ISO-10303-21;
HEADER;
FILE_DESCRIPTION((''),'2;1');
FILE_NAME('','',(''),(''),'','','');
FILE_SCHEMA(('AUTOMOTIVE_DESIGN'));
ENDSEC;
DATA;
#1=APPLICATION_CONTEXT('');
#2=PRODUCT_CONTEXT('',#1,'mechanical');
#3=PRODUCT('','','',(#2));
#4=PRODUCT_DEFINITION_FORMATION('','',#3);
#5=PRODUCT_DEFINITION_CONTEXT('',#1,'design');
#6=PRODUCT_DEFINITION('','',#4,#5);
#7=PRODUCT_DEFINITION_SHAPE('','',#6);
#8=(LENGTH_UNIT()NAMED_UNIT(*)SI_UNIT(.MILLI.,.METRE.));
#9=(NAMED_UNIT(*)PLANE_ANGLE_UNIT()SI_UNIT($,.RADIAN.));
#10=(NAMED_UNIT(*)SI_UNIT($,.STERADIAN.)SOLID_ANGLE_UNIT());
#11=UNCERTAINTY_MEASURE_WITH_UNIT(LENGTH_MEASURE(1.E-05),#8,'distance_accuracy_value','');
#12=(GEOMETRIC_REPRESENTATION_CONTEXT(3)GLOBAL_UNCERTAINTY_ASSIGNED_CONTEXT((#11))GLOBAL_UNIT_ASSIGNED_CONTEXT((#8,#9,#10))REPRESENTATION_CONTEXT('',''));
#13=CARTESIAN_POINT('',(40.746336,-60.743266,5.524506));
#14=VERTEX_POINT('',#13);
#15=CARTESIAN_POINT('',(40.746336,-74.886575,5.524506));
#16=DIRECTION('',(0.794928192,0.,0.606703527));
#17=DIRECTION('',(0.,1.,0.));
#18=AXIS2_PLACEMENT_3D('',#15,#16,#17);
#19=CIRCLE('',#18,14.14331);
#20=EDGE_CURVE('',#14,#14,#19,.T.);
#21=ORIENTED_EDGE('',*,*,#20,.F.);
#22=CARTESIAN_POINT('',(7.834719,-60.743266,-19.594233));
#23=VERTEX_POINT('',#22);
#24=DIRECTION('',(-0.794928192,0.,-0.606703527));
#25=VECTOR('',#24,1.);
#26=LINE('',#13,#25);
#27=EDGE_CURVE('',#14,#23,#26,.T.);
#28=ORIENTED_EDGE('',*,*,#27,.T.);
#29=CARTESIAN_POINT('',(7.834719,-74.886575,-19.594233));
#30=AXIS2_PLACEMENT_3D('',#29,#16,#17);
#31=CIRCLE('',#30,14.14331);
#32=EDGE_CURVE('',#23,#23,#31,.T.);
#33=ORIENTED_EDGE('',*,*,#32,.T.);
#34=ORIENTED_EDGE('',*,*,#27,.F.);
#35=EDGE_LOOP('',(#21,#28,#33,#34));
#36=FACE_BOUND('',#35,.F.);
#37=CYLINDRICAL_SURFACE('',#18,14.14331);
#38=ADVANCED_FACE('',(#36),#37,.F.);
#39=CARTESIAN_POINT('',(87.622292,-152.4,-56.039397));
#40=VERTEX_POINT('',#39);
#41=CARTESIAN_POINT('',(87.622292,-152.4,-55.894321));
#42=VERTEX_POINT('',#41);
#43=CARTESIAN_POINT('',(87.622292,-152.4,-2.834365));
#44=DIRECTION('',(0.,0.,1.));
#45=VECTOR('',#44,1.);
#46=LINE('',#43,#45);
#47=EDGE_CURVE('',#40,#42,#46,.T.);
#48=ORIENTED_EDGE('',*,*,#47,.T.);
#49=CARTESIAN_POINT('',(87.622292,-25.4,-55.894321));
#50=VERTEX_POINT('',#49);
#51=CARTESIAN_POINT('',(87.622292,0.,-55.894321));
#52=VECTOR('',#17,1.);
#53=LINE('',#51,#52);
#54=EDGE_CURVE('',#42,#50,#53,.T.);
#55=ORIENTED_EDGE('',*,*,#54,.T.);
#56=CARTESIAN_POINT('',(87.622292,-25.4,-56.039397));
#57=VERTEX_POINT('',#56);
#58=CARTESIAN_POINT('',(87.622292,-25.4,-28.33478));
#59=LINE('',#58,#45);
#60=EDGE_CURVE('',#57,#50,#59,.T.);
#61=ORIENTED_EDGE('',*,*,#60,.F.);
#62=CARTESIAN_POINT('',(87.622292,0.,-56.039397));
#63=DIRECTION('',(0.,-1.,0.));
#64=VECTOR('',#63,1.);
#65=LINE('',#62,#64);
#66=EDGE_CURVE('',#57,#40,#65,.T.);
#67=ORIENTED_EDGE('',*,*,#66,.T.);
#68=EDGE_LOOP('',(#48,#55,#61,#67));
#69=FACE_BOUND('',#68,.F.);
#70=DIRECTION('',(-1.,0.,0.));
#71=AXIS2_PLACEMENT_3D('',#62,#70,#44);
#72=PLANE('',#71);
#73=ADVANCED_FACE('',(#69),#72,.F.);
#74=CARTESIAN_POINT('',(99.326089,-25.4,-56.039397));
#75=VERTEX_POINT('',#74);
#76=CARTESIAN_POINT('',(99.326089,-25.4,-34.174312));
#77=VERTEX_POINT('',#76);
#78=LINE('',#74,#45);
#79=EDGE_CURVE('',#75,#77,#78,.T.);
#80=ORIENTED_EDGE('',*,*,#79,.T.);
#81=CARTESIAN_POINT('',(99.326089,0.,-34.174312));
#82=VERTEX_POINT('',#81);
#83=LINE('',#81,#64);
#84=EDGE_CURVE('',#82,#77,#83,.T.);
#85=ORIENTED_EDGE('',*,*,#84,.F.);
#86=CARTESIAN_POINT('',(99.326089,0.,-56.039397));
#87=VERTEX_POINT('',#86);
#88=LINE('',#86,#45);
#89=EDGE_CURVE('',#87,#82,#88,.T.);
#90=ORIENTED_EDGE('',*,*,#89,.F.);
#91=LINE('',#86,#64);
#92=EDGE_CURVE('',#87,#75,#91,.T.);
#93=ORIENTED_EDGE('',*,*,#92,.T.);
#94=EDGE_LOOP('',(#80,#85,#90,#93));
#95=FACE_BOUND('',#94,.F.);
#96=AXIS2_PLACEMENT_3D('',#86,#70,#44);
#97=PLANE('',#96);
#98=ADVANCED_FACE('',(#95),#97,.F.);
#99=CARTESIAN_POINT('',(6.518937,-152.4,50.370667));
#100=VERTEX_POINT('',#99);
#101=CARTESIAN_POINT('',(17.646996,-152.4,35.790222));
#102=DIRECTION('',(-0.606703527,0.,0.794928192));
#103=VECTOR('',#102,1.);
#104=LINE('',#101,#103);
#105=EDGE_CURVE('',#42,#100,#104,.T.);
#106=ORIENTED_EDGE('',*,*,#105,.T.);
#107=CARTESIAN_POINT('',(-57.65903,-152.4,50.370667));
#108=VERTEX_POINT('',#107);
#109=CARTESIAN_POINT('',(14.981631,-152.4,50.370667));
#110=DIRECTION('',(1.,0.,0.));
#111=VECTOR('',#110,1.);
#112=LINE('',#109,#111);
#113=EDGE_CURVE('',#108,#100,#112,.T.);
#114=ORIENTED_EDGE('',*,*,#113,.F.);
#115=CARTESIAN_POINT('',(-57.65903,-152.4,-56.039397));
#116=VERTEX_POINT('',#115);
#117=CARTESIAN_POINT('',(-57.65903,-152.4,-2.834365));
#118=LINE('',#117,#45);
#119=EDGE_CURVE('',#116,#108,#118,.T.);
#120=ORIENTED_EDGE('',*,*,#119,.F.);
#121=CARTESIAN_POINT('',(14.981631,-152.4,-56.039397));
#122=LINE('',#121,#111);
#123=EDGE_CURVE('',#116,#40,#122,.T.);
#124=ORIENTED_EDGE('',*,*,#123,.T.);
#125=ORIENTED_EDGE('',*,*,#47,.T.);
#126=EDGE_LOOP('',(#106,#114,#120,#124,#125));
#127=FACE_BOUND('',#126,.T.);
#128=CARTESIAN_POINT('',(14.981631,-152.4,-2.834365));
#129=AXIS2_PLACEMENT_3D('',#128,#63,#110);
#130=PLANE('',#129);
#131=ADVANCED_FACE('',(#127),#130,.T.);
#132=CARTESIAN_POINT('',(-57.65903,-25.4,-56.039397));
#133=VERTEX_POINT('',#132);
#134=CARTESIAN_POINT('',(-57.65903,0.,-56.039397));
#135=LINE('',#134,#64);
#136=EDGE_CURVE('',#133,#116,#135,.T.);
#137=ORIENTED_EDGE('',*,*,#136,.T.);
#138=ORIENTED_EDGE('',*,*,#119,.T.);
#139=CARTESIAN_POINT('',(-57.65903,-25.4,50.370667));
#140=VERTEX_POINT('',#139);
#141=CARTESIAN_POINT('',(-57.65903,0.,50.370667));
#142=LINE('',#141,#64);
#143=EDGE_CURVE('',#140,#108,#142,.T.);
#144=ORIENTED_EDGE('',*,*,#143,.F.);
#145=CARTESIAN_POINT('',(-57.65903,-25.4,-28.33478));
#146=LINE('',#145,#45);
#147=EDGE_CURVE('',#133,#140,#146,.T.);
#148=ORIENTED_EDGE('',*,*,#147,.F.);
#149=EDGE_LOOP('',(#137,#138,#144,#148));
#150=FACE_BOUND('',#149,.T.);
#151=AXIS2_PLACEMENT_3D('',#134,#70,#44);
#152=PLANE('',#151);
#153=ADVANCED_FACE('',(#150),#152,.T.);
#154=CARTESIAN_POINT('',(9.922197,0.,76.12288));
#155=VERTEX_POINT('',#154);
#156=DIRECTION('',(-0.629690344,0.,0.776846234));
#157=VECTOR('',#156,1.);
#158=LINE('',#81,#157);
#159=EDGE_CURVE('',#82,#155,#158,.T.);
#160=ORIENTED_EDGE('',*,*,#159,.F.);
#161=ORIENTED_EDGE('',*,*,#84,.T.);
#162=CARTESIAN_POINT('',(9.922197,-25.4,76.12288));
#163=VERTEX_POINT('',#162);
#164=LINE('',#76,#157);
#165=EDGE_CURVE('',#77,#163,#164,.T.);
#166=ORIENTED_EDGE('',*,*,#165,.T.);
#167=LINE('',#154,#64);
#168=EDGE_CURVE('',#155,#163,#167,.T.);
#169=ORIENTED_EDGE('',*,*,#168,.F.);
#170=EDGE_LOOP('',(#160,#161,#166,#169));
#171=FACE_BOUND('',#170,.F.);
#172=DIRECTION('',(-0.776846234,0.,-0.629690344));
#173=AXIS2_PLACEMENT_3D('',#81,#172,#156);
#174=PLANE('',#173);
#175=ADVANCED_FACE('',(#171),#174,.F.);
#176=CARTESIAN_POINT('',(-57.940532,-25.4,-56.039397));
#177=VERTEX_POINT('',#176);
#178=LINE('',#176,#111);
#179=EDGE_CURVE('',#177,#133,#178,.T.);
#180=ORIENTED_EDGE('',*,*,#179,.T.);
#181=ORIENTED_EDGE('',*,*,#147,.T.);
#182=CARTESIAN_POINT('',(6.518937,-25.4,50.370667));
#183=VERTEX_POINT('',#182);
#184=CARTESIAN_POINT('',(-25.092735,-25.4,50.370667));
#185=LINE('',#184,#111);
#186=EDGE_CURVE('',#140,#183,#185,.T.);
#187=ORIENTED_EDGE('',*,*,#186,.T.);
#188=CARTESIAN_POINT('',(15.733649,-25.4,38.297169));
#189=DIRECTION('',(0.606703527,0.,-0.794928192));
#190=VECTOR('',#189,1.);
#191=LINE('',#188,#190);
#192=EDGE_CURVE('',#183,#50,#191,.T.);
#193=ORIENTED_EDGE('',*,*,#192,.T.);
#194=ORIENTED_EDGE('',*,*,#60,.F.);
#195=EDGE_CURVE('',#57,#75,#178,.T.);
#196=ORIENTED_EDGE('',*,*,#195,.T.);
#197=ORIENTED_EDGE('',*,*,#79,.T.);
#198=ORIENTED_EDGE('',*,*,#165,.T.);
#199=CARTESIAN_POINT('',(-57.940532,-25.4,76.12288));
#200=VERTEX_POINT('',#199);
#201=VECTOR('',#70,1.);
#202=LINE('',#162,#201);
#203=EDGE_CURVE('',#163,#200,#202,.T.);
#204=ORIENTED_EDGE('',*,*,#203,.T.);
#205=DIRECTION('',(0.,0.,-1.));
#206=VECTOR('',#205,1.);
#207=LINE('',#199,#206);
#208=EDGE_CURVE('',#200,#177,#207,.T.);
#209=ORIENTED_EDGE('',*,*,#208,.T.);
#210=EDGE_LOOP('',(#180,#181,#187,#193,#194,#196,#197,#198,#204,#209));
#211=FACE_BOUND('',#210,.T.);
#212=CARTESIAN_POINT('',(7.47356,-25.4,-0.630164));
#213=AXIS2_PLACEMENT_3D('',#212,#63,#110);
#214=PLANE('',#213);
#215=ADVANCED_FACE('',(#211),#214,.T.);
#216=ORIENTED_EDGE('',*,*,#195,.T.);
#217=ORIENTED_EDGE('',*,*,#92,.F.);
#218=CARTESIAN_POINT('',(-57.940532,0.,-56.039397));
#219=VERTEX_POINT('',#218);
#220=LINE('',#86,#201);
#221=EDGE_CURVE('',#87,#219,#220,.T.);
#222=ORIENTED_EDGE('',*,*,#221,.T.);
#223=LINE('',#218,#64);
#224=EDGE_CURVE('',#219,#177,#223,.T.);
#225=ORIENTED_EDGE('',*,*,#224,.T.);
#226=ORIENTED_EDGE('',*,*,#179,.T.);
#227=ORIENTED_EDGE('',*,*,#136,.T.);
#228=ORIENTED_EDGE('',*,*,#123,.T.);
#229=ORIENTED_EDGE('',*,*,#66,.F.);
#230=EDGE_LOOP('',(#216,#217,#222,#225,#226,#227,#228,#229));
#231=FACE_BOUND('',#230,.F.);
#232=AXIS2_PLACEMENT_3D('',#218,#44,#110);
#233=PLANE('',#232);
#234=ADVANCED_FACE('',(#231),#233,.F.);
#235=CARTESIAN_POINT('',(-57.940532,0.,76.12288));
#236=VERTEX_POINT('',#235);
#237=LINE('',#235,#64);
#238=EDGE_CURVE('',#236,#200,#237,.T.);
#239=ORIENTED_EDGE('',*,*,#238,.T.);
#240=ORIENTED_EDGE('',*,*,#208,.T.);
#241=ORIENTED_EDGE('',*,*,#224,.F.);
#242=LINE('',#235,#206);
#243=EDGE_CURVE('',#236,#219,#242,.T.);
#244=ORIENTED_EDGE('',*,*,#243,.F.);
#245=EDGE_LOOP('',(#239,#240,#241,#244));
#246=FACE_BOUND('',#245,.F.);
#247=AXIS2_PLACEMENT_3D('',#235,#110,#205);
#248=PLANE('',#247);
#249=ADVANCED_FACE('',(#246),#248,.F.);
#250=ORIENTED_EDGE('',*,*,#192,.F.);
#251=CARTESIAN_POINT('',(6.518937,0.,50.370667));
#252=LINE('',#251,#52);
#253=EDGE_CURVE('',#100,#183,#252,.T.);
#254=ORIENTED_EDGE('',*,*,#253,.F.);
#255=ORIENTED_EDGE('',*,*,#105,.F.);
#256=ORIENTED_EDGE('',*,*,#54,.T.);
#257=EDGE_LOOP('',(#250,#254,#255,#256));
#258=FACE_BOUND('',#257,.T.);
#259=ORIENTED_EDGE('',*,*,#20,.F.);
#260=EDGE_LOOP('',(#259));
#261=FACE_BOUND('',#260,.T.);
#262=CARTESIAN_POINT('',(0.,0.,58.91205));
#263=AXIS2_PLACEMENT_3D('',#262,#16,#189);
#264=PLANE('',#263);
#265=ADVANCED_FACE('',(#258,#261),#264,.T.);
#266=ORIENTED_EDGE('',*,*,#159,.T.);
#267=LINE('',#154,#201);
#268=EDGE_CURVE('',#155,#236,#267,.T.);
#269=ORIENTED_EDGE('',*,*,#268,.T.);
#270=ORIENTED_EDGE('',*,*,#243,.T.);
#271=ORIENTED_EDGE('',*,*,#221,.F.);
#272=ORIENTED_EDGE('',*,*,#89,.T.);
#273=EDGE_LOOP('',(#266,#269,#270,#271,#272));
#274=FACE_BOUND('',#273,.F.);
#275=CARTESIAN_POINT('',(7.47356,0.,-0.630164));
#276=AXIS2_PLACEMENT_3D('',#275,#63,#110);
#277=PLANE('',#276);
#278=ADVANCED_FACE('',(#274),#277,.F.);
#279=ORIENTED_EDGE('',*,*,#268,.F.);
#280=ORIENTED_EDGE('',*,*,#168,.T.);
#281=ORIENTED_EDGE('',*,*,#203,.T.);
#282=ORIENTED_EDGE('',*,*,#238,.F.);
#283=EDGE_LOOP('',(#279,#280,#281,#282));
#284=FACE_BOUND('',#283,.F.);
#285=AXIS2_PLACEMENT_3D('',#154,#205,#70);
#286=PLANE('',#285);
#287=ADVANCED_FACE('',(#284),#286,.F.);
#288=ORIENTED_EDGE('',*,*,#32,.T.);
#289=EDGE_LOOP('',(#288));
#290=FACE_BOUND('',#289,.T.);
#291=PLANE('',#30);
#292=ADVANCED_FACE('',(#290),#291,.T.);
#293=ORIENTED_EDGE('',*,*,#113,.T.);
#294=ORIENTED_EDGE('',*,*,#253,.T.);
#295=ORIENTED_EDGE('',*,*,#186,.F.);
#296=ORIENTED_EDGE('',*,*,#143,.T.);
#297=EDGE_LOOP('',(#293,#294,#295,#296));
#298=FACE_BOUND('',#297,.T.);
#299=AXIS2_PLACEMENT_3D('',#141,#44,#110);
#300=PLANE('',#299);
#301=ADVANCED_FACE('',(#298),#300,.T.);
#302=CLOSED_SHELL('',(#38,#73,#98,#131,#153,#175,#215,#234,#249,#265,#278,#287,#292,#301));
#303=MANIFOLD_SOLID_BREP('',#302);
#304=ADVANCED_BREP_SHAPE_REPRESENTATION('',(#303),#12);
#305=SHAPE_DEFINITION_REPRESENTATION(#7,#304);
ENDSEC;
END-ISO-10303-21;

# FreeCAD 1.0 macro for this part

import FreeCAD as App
import Part
import Sketcher


def add_polygon(sketch, points):
    """Adds a closed chain of lines whose ends are joined by coincident constraints."""
    first, n = sketch.GeometryCount, len(points)
    for a, b in zip(points, points[1:] + points[:1]):
        sketch.addGeometry(Part.LineSegment(App.Vector(*a, 0), App.Vector(*b, 0)), False)
    for i in range(n):
        sketch.addConstraint(Sketcher.Constraint("Coincident", first + i, 2, first + (i + 1) % n, 1))

doc = App.newDocument("Part")
params = doc.addObject("Spreadsheet::Sheet", "Params")
for row, (alias, value) in enumerate([
    ("pad1_length", "6 in"),
    ("pocket2_length", "1.63 in"),
    ("pad2_length", "1 in"),
], start=1):
    params.set(f"A{row}", alias)
    params.set(f"B{row}", "=" + value)
    params.setAlias(f"B{row}", alias)

body = doc.addObject("PartDesign::Body", "Body")

sketch1 = doc.addObject("Sketcher::SketchObject", "Sketch")
body.addObject(sketch1)
sketch1.AttachmentSupport = (doc.XZ_Plane, [""])
sketch1.MapMode = "FlatFace"
add_polygon(sketch1, [(-58, 50), (-58, -56), (88, -56), (88, 50)])
sketch1.addConstraint([
    Sketcher.Constraint("Vertical", 0),
    Sketcher.Constraint("Horizontal", 1),
    Sketcher.Constraint("Vertical", 2),
    Sketcher.Constraint("Horizontal", 3),
    Sketcher.Constraint("DistanceX", 1, 1, 1, 2, 145.281322),
    Sketcher.Constraint("DistanceY", 0, 2, 0, 1, 106.410064),
    Sketcher.Constraint("DistanceX", 0, 2, -1, 1, 57.65903),
    Sketcher.Constraint("DistanceY", 0, 2, -1, 1, 56.039397),
])
pad1 = doc.addObject("PartDesign::Pad", "Pad")
body.addObject(pad1)
pad1.Profile = sketch1
pad1.setExpression("Length", "Params.pad1_length")

sketch2 = doc.addObject("Sketcher::SketchObject", "Sketch001")
body.addObject(sketch2)
sketch2.AttachmentSupport = (doc.XZ_Plane, [""])
sketch2.MapMode = "FlatFace"
add_polygon(sketch2, [(91, 59), (0, 59), (91, -61)])
sketch2.addConstraint([
    Sketcher.Constraint("Vertical", 2),
    Sketcher.Constraint("PointOnObject", 0, 2, -2),
    Sketcher.Constraint("Distance", 0, 91.324129),
    Sketcher.Constraint("Distance", 1, 150.522639),
    Sketcher.Constraint("DistanceY", 2, 1, 2, 2, 120.180403),
    Sketcher.Constraint("DistanceY", -1, 1, 0, 2, 58.91205),
])
pocket1 = doc.addObject("PartDesign::Pocket", "Pocket")
body.addObject(pocket1)
pocket1.Profile = sketch2
pocket1.Type = "ThroughAll"
pocket1.Midplane = True

sketch3 = doc.addObject("Sketcher::SketchObject", "Sketch002")
body.addObject(sketch3)
sketch3.Placement = App.Placement(App.Vector(28.412441, 0, 21.684888), App.Rotation(App.Vector(0, 1, 0), App.Vector(-0.606703527, 0, 0.794928192), App.Vector(0.794928192, 0, 0.606703527), "ZXY"))
sketch3.addGeometry(Part.Circle(App.Vector(-75, -20, 0), App.Vector(0, 0, 1), 14), False)
sketch3.addConstraint([
    Sketcher.Constraint("Diameter", 0, 28.286619),
    Sketcher.Constraint("DistanceY", 0, 3, -1, 1, 20.32936),
    Sketcher.Constraint("DistanceX", 0, 3, -1, 1, 74.886575),
])
pocket2 = doc.addObject("PartDesign::Pocket", "Pocket001")
body.addObject(pocket2)
pocket2.Profile = sketch3
pocket2.setExpression("Length", "Params.pocket2_length")

sketch4 = doc.addObject("Sketcher::SketchObject", "Sketch003")
body.addObject(sketch4)
sketch4.AttachmentSupport = (doc.XZ_Plane, [""])
sketch4.MapMode = "FlatFace"
add_polygon(sketch4, [(10, 76), (-58, 76), (-58, -56), (99, -56), (99, -34)])
sketch4.addConstraint([
    Sketcher.Constraint("Horizontal", 0),
    Sketcher.Constraint("Vertical", 1),
    Sketcher.Constraint("Horizontal", 2),
    Sketcher.Constraint("Vertical", 3),
    Sketcher.Constraint("DistanceX", 0, 2, 0, 1, 67.862729),
    Sketcher.Constraint("DistanceX", 2, 1, 2, 2, 157.266621),
    Sketcher.Constraint("DistanceY", 1, 2, 1, 1, 132.162277),
    Sketcher.Constraint("DistanceY", 3, 1, 3, 2, 21.865085),
    Sketcher.Constraint("DistanceX", 0, 2, -1, 1, 57.940532),
    Sketcher.Constraint("DistanceY", -1, 1, 0, 2, 76.12288),
])
pad2 = doc.addObject("PartDesign::Pad", "Pad001")
body.addObject(pad2)
pad2.Profile = sketch4
pad2.setExpression("Length", "Params.pad2_length")

doc.recompute()
